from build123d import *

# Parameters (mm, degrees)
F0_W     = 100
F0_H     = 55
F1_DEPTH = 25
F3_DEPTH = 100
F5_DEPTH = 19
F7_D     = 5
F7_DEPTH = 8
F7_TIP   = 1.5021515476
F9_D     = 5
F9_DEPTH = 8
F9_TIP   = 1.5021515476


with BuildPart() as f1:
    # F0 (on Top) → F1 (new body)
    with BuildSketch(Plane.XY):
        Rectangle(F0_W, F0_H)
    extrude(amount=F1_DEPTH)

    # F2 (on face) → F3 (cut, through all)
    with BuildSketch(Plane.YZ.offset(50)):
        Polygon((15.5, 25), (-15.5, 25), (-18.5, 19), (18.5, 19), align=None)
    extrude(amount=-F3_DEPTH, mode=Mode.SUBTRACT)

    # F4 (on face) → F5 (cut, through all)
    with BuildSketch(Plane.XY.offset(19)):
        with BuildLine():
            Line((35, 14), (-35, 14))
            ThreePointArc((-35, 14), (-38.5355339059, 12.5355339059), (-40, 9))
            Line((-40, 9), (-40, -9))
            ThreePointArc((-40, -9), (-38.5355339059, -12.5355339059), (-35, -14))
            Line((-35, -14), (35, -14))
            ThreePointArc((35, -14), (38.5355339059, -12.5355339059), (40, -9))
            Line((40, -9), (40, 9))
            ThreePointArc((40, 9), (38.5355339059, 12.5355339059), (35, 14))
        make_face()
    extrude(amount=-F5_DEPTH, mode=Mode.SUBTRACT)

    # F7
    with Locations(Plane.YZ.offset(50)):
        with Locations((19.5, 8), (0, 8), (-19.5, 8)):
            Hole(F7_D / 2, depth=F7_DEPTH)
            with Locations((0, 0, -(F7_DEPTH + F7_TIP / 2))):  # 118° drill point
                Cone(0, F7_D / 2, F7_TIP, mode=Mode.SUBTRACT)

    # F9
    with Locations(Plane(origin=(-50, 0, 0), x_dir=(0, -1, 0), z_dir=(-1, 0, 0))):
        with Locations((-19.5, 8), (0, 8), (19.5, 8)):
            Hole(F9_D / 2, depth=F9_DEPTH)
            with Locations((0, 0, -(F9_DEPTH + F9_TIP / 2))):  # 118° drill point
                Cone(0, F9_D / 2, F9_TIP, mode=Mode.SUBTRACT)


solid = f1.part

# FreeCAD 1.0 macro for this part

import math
import FreeCAD as App
import Part
import Sketcher

doc = App.newDocument("Part")
body = doc.addObject("PartDesign::Body", "Body")

# Sketch on XY plane
sketch1 = doc.addObject("Sketcher::SketchObject", "Sketch")
body.addObject(sketch1)
sketch1.AttachmentSupport = (doc.XY_Plane, [""])
sketch1.MapMode = "FlatFace"
sketch1.addGeometry(Part.LineSegment(App.Vector(-50, 28, 0), App.Vector(-50, -28, 0)), False)
sketch1.addGeometry(Part.LineSegment(App.Vector(-50, -28, 0), App.Vector(50, -28, 0)), False)
sketch1.addGeometry(Part.LineSegment(App.Vector(50, -28, 0), App.Vector(50, 28, 0)), False)
sketch1.addGeometry(Part.LineSegment(App.Vector(50, 28, 0), App.Vector(-50, 28, 0)), False)
sketch1.addConstraint(Sketcher.Constraint("Coincident", 0, 2, 1, 1))
sketch1.addConstraint(Sketcher.Constraint("Coincident", 1, 2, 2, 1))
sketch1.addConstraint(Sketcher.Constraint("Coincident", 2, 2, 3, 1))
sketch1.addConstraint(Sketcher.Constraint("Coincident", 3, 2, 0, 1))
sketch1.addConstraint(Sketcher.Constraint("Vertical", 0))
sketch1.addConstraint(Sketcher.Constraint("Horizontal", 1))
sketch1.addConstraint(Sketcher.Constraint("Vertical", 2))
sketch1.addConstraint(Sketcher.Constraint("Horizontal", 3))
sketch1.addConstraint(Sketcher.Constraint("Symmetric", 0, 2, 2, 2, -1, 1))
sketch1.addConstraint(Sketcher.Constraint("DistanceX", 1, 1, 1, 2, 100.0))
sketch1.addConstraint(Sketcher.Constraint("DistanceY", 0, 2, 0, 1, 55.0))
pad1 = doc.addObject("PartDesign::Pad", "Pad")
body.addObject(pad1)
pad1.Profile = sketch1
pad1.Length = 25

# Sketch on YZ plane
sketch2 = doc.addObject("Sketcher::SketchObject", "Sketch001")
body.addObject(sketch2)
sketch2.AttachmentSupport = (doc.YZ_Plane, [""])
sketch2.MapMode = "FlatFace"
sketch2.AttachmentOffset = App.Placement(App.Vector(0, 0, 50), App.Rotation())
sketch2.addGeometry(Part.LineSegment(App.Vector(16, 25, 0), App.Vector(-16, 25, 0)), False)
sketch2.addGeometry(Part.LineSegment(App.Vector(-16, 25, 0), App.Vector(-18, 19, 0)), False)
sketch2.addGeometry(Part.LineSegment(App.Vector(-18, 19, 0), App.Vector(18, 19, 0)), False)
sketch2.addGeometry(Part.LineSegment(App.Vector(18, 19, 0), App.Vector(16, 25, 0)), False)
sketch2.addConstraint(Sketcher.Constraint("Coincident", 0, 2, 1, 1))
sketch2.addConstraint(Sketcher.Constraint("Coincident", 1, 2, 2, 1))
sketch2.addConstraint(Sketcher.Constraint("Coincident", 2, 2, 3, 1))
sketch2.addConstraint(Sketcher.Constraint("Coincident", 3, 2, 0, 1))
sketch2.addConstraint(Sketcher.Constraint("Horizontal", 0))
sketch2.addConstraint(Sketcher.Constraint("Horizontal", 2))
sketch2.addConstraint(Sketcher.Constraint("Equal", 1, 3))
sketch2.addConstraint(Sketcher.Constraint("DistanceX", 0, 2, 0, 1, 31.0))
sketch2.addConstraint(Sketcher.Constraint("DistanceX", 2, 1, 2, 2, 37.0))
sketch2.addConstraint(Sketcher.Constraint("DistanceY", -1, 1, 0, 2, 25.0))
sketch2.addConstraint(Sketcher.Constraint("DistanceY", -1, 1, 1, 2, 19.0))
sketch2.addConstraint(Sketcher.Constraint("DistanceX", 0, 2, -1, 1, 15.5))
pocket1 = doc.addObject("PartDesign::Pocket", "Pocket")
body.addObject(pocket1)
pocket1.Profile = sketch2
pocket1.Type = "ThroughAll"

# Sketch on XY plane
sketch3 = doc.addObject("Sketcher::SketchObject", "Sketch002")
body.addObject(sketch3)
sketch3.AttachmentSupport = (doc.XY_Plane, [""])
sketch3.MapMode = "FlatFace"
sketch3.AttachmentOffset = App.Placement(App.Vector(0, 0, 19), App.Rotation())
sketch3.addGeometry(Part.LineSegment(App.Vector(35, 14, 0), App.Vector(-35, 14, 0)), False)
sketch3.addGeometry(Part.ArcOfCircle(Part.Circle(App.Vector(-35, 9, 0), App.Vector(0, 0, 1), 5), math.radians(90), math.radians(180)), False)
sketch3.addGeometry(Part.LineSegment(App.Vector(-40, 9, 0), App.Vector(-40, -9, 0)), False)
sketch3.addGeometry(Part.ArcOfCircle(Part.Circle(App.Vector(-35, -9, 0), App.Vector(0, 0, 1), 5), math.radians(180), math.radians(270)), False)
sketch3.addGeometry(Part.LineSegment(App.Vector(-35, -14, 0), App.Vector(35, -14, 0)), False)
sketch3.addGeometry(Part.ArcOfCircle(Part.Circle(App.Vector(35, -9, 0), App.Vector(0, 0, 1), 5), math.radians(-90), math.radians(0)), False)
sketch3.addGeometry(Part.LineSegment(App.Vector(40, -9, 0), App.Vector(40, 9, 0)), False)
sketch3.addGeometry(Part.ArcOfCircle(Part.Circle(App.Vector(35, 9, 0), App.Vector(0, 0, 1), 5), math.radians(0), math.radians(90)), False)
sketch3.addConstraint(Sketcher.Constraint("Tangent", 0, 2, 1, 1))
sketch3.addConstraint(Sketcher.Constraint("Tangent", 1, 2, 2, 1))
sketch3.addConstraint(Sketcher.Constraint("Tangent", 2, 2, 3, 1))
sketch3.addConstraint(Sketcher.Constraint("Tangent", 3, 2, 4, 1))
sketch3.addConstraint(Sketcher.Constraint("Tangent", 4, 2, 5, 1))
sketch3.addConstraint(Sketcher.Constraint("Tangent", 5, 2, 6, 1))
sketch3.addConstraint(Sketcher.Constraint("Tangent", 6, 2, 7, 1))
sketch3.addConstraint(Sketcher.Constraint("Tangent", 7, 2, 0, 1))
sketch3.addConstraint(Sketcher.Constraint("Horizontal", 0))
sketch3.addConstraint(Sketcher.Constraint("Vertical", 2))
sketch3.addConstraint(Sketcher.Constraint("Horizontal", 4))
sketch3.addConstraint(Sketcher.Constraint("Vertical", 6))
sketch3.addConstraint(Sketcher.Constraint("Equal", 1, 3))
sketch3.addConstraint(Sketcher.Constraint("Equal", 3, 5))
sketch3.addConstraint(Sketcher.Constraint("Equal", 5, 7))
sketch3.addConstraint(Sketcher.Constraint("Symmetric", 1, 3, 5, 3, -1, 1))
sketch3.addConstraint(Sketcher.Constraint("Radius", 1, 5.0))
sketch3.addConstraint(Sketcher.Constraint("DistanceX", 0, 2, 0, 1, 70.0))
sketch3.addConstraint(Sketcher.Constraint("DistanceY", 2, 2, 2, 1, 18.0))
pocket2 = doc.addObject("PartDesign::Pocket", "Pocket001")
body.addObject(pocket2)
pocket2.Profile = sketch3
pocket2.Type = "ThroughAll"

# Sketch on YZ plane
sketch4 = doc.addObject("Sketcher::SketchObject", "Sketch003")
body.addObject(sketch4)
sketch4.AttachmentSupport = (doc.YZ_Plane, [""])
sketch4.MapMode = "FlatFace"
sketch4.AttachmentOffset = App.Placement(App.Vector(0, 0, 50), App.Rotation())
sketch4.addGeometry(Part.Circle(App.Vector(19.5, 8, 0), App.Vector(0, 0, 1), 2.5), False)
sketch4.addGeometry(Part.Circle(App.Vector(0, 8, 0), App.Vector(0, 0, 1), 2.5), False)
sketch4.addGeometry(Part.Circle(App.Vector(-19.5, 8, 0), App.Vector(0, 0, 1), 2.5), False)
sketch4.addConstraint(Sketcher.Constraint("Equal", 0, 1))
sketch4.addConstraint(Sketcher.Constraint("Equal", 1, 2))
sketch4.addConstraint(Sketcher.Constraint("Symmetric", 0, 3, 2, 3, -2))
sketch4.addConstraint(Sketcher.Constraint("PointOnObject", 1, 3, -2))
sketch4.addConstraint(Sketcher.Constraint("Horizontal", 0, 3, 1, 3))
sketch4.addConstraint(Sketcher.Constraint("Diameter", 0, 5.0))
sketch4.addConstraint(Sketcher.Constraint("DistanceY", -1, 1, 0, 3, 8.0))
sketch4.addConstraint(Sketcher.Constraint("DistanceX", 2, 3, 0, 3, 39.0))
doc.recompute()
hole = doc.addObject("PartDesign::Hole", "Hole")
body.addObject(hole)
hole.Profile = sketch4
hole.ThreadType = "None"
hole.Diameter = 5
hole.DepthType = "Dimension"
hole.Depth = 8
hole.DrillPoint = "Angled"
hole.DrillPointAngle = 118

# Sketch on YZ plane
sketch5 = doc.addObject("Sketcher::SketchObject", "Sketch004")
body.addObject(sketch5)
sketch5.AttachmentSupport = (doc.YZ_Plane, [""])
sketch5.MapMode = "FlatFace"
sketch5.AttachmentOffset = App.Placement(App.Vector(0, 0, -50), App.Rotation())
sketch5.addGeometry(Part.Circle(App.Vector(19.5, 8, 0), App.Vector(0, 0, 1), 2.5), False)
sketch5.addGeometry(Part.Circle(App.Vector(0, 8, 0), App.Vector(0, 0, 1), 2.5), False)
sketch5.addGeometry(Part.Circle(App.Vector(-19.5, 8, 0), App.Vector(0, 0, 1), 2.5), False)
sketch5.addConstraint(Sketcher.Constraint("Equal", 0, 1))
sketch5.addConstraint(Sketcher.Constraint("Equal", 1, 2))
sketch5.addConstraint(Sketcher.Constraint("Symmetric", 0, 3, 2, 3, -2))
sketch5.addConstraint(Sketcher.Constraint("PointOnObject", 1, 3, -2))
sketch5.addConstraint(Sketcher.Constraint("Horizontal", 0, 3, 1, 3))
sketch5.addConstraint(Sketcher.Constraint("Diameter", 0, 5.0))
sketch5.addConstraint(Sketcher.Constraint("DistanceY", -1, 1, 0, 3, 8.0))
sketch5.addConstraint(Sketcher.Constraint("DistanceX", 2, 3, 0, 3, 39.0))
doc.recompute()
hole2 = doc.addObject("PartDesign::Hole", "Hole001")
body.addObject(hole2)
hole2.Profile = sketch5
hole2.ThreadType = "None"
hole2.Diameter = 5
hole2.DepthType = "Dimension"
hole2.Depth = 8
hole2.DrillPoint = "Angled"
hole2.DrillPointAngle = 118
hole2.Reversed = True

doc.recompute()
